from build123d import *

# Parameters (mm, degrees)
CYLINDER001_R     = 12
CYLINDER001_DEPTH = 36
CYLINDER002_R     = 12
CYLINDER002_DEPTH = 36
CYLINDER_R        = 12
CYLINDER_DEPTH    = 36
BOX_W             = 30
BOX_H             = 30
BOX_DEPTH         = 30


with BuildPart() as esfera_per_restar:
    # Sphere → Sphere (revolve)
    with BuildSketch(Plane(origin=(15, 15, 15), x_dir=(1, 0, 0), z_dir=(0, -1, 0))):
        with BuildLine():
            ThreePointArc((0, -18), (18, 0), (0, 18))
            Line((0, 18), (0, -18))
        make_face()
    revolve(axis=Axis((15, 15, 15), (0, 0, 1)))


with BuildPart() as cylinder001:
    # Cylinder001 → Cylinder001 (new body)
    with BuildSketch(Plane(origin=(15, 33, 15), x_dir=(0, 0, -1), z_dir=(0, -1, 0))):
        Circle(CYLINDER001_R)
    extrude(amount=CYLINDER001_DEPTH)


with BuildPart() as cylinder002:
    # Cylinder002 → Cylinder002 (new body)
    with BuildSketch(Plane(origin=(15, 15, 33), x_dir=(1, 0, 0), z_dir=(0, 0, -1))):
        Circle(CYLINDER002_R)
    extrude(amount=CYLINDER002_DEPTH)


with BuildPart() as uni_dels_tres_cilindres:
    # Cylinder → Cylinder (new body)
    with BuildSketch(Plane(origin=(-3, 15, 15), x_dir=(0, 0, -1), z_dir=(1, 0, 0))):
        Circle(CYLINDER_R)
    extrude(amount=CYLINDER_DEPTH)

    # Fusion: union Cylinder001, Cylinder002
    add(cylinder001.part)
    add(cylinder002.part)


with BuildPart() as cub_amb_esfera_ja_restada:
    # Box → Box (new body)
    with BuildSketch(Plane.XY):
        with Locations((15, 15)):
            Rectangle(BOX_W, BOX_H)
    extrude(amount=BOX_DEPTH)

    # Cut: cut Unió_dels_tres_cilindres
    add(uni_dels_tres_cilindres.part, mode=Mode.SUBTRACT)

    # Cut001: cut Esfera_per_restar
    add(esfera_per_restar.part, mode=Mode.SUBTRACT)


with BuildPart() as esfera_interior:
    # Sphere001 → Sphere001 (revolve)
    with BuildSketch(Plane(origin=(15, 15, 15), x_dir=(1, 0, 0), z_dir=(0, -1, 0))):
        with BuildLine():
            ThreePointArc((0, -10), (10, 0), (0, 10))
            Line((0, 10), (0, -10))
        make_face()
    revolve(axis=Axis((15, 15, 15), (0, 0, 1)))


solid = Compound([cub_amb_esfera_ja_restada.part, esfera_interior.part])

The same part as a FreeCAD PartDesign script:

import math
import FreeCAD as App
import Part
import Sketcher

V = App.Vector
Q = App.Units.Quantity

doc = App.newDocument("Part")
body = doc.addObject("PartDesign::Body", "Body")

sketch1 = body.newObject("Sketcher::SketchObject", "Sketch")
sketch1.AttachmentSupport = (doc.getObject("XZ_Plane"), [""])
sketch1.MapMode = "FlatFace"
sketch1.AttachmentOffset = App.Placement(V(0, 0, -15), App.Rotation())
sketch1.addGeometry(Part.ArcOfCircle(Part.Circle(V(15, 15, 0), V(0, 0, 1), 18), math.radians(-90), math.radians(90)), False)
sketch1.addGeometry(Part.LineSegment(V(15, 33, 0), V(15, -3, 0)), False)
sketch1.addGeometry(Part.LineSegment(V(15, -3, 0), V(15, 33, 0)), True)
sketch1.addConstraint(Sketcher.Constraint("Coincident", 0, 1, 1, 2))
sketch1.addConstraint(Sketcher.Constraint("Coincident", 1, 1, 0, 2))
sketch1.addConstraint(Sketcher.Constraint("Vertical", 1))
sketch1.addConstraint(Sketcher.Constraint("Vertical", 2))
sketch1.addConstraint(Sketcher.Constraint("Coincident", 2, 1, 0, 1))
sketch1.addConstraint(Sketcher.Constraint("Equal", 1, 2))
sketch1.addConstraint(Sketcher.Constraint("Radius", 0, Q("18 mm")))
sketch1.addConstraint(Sketcher.Constraint("DistanceX", -1, 1, 0, 3, Q("15 mm")))
sketch1.addConstraint(Sketcher.Constraint("DistanceY", -1, 1, 0, 3, Q("15 mm")))
sketch1.addConstraint(Sketcher.Constraint("DistanceX", -1, 1, 0, 1, Q("15 mm")))
revolution = body.newObject("PartDesign::Revolution", "Revolution")
revolution.Profile = sketch1
revolution.ReferenceAxis = (sketch1, ["Axis0"])
revolution.Angle = 360
body2 = doc.addObject("PartDesign::Body", "Body001")

sketch2 = body2.newObject("Sketcher::SketchObject", "Sketch001")
sketch2.AttachmentSupport = (doc.getObject("XZ_Plane001"), [""])
sketch2.MapMode = "FlatFace"
sketch2.AttachmentOffset = App.Placement(V(0, 0, -33), App.Rotation())
sketch2.addGeometry(Part.Circle(V(15, 15, 0), V(0, 0, 1), 12), False)
sketch2.addConstraint(Sketcher.Constraint("Diameter", 0, Q("24 mm")))
sketch2.addConstraint(Sketcher.Constraint("DistanceX", -1, 1, 0, 3, Q("15 mm")))
sketch2.addConstraint(Sketcher.Constraint("DistanceY", -1, 1, 0, 3, Q("15 mm")))
pad1 = body2.newObject("PartDesign::Pad", "Pad")
pad1.Profile = sketch2
pad1.Length = 36
body3 = doc.addObject("PartDesign::Body", "Body002")

sketch3 = body3.newObject("Sketcher::SketchObject", "Sketch002")
sketch3.AttachmentSupport = (doc.getObject("XY_Plane002"), [""])
sketch3.MapMode = "FlatFace"
sketch3.AttachmentOffset = App.Placement(V(0, 0, 33), App.Rotation())
sketch3.addGeometry(Part.Circle(V(15, 15, 0), V(0, 0, 1), 12), False)
sketch3.addConstraint(Sketcher.Constraint("Diameter", 0, Q("24 mm")))
sketch3.addConstraint(Sketcher.Constraint("DistanceX", -1, 1, 0, 3, Q("15 mm")))
sketch3.addConstraint(Sketcher.Constraint("DistanceY", -1, 1, 0, 3, Q("15 mm")))
pad2 = body3.newObject("PartDesign::Pad", "Pad001")
pad2.Profile = sketch3
pad2.Length = 36
pad2.Reversed = True
body4 = doc.addObject("PartDesign::Body", "Body003")

sketch4 = body4.newObject("Sketcher::SketchObject", "Sketch003")
sketch4.AttachmentSupport = (doc.getObject("YZ_Plane003"), [""])
sketch4.MapMode = "FlatFace"
sketch4.AttachmentOffset = App.Placement(V(0, 0, -3), App.Rotation())
sketch4.addGeometry(Part.Circle(V(15, 15, 0), V(0, 0, 1), 12), False)
sketch4.addConstraint(Sketcher.Constraint("Diameter", 0, Q("24 mm")))
sketch4.addConstraint(Sketcher.Constraint("DistanceX", -1, 1, 0, 3, Q("15 mm")))
sketch4.addConstraint(Sketcher.Constraint("DistanceY", -1, 1, 0, 3, Q("15 mm")))
pad3 = body4.newObject("PartDesign::Pad", "Pad002")
pad3.Profile = sketch4
pad3.Length = 36
doc.recompute()

boolean = body4.newObject("PartDesign::Boolean", "Boolean")
boolean.Type = "Fuse"
boolean.addObjects([body2])
doc.recompute()

boolean2 = body4.newObject("PartDesign::Boolean", "Boolean001")
boolean2.Type = "Fuse"
boolean2.addObjects([body3])
body5 = doc.addObject("PartDesign::Body", "Body004")

sketch5 = body5.newObject("Sketcher::SketchObject", "Sketch004")
sketch5.AttachmentSupport = (doc.getObject("XY_Plane004"), [""])
sketch5.MapMode = "FlatFace"
sketch5.addGeometry(Part.LineSegment(V(0, 30, 0), V(0, 0, 0)), False)
sketch5.addGeometry(Part.LineSegment(V(0, 0, 0), V(30, 0, 0)), False)
sketch5.addGeometry(Part.LineSegment(V(30, 0, 0), V(30, 30, 0)), False)
sketch5.addGeometry(Part.LineSegment(V(30, 30, 0), V(0, 30, 0)), False)
sketch5.addConstraint(Sketcher.Constraint("Coincident", 0, 2, 1, 1))
sketch5.addConstraint(Sketcher.Constraint("Coincident", 1, 2, 2, 1))
sketch5.addConstraint(Sketcher.Constraint("Coincident", 2, 2, 3, 1))
sketch5.addConstraint(Sketcher.Constraint("Coincident", 3, 2, 0, 1))
sketch5.addConstraint(Sketcher.Constraint("Vertical", 0))
sketch5.addConstraint(Sketcher.Constraint("Horizontal", 1))
sketch5.addConstraint(Sketcher.Constraint("Vertical", 2))
sketch5.addConstraint(Sketcher.Constraint("Horizontal", 3))
sketch5.addConstraint(Sketcher.Constraint("Coincident", 0, 2, -1, 1))
sketch5.addConstraint(Sketcher.Constraint("Equal", 3, 0))
sketch5.addConstraint(Sketcher.Constraint("DistanceX", 1, 1, 1, 2, Q("30 mm")))
pad4 = body5.newObject("PartDesign::Pad", "Pad003")
pad4.Profile = sketch5
pad4.Length = 30
doc.recompute()

boolean3 = body5.newObject("PartDesign::Boolean", "Boolean002")
boolean3.Type = "Cut"
boolean3.addObjects([body4])
doc.recompute()

boolean4 = body5.newObject("PartDesign::Boolean", "Boolean003")
boolean4.Type = "Cut"
boolean4.addObjects([body])
body6 = doc.addObject("PartDesign::Body", "Body005")

sketch6 = body6.newObject("Sketcher::SketchObject", "Sketch005")
sketch6.AttachmentSupport = (doc.getObject("XZ_Plane005"), [""])
sketch6.MapMode = "FlatFace"
sketch6.AttachmentOffset = App.Placement(V(0, 0, -15), App.Rotation())
sketch6.addGeometry(Part.ArcOfCircle(Part.Circle(V(15, 15, 0), V(0, 0, 1), 10), math.radians(-90), math.radians(90)), False)
sketch6.addGeometry(Part.LineSegment(V(15, 25, 0), V(15, 5, 0)), False)
sketch6.addGeometry(Part.LineSegment(V(15, 5, 0), V(15, 25, 0)), True)
sketch6.addConstraint(Sketcher.Constraint("Coincident", 0, 1, 1, 2))
sketch6.addConstraint(Sketcher.Constraint("Coincident", 1, 1, 0, 2))
sketch6.addConstraint(Sketcher.Constraint("Vertical", 1))
sketch6.addConstraint(Sketcher.Constraint("Vertical", 2))
sketch6.addConstraint(Sketcher.Constraint("Coincident", 2, 1, 0, 1))
sketch6.addConstraint(Sketcher.Constraint("Equal", 1, 2))
sketch6.addConstraint(Sketcher.Constraint("Radius", 0, Q("10 mm")))
sketch6.addConstraint(Sketcher.Constraint("DistanceX", -1, 1, 0, 3, Q("15 mm")))
sketch6.addConstraint(Sketcher.Constraint("DistanceY", -1, 1, 0, 3, Q("15 mm")))
sketch6.addConstraint(Sketcher.Constraint("DistanceX", -1, 1, 0, 1, Q("15 mm")))
revolution2 = body6.newObject("PartDesign::Revolution", "Revolution001")
revolution2.Profile = sketch6
revolution2.ReferenceAxis = (sketch6, ["Axis0"])
revolution2.Angle = 360

doc.recompute()
